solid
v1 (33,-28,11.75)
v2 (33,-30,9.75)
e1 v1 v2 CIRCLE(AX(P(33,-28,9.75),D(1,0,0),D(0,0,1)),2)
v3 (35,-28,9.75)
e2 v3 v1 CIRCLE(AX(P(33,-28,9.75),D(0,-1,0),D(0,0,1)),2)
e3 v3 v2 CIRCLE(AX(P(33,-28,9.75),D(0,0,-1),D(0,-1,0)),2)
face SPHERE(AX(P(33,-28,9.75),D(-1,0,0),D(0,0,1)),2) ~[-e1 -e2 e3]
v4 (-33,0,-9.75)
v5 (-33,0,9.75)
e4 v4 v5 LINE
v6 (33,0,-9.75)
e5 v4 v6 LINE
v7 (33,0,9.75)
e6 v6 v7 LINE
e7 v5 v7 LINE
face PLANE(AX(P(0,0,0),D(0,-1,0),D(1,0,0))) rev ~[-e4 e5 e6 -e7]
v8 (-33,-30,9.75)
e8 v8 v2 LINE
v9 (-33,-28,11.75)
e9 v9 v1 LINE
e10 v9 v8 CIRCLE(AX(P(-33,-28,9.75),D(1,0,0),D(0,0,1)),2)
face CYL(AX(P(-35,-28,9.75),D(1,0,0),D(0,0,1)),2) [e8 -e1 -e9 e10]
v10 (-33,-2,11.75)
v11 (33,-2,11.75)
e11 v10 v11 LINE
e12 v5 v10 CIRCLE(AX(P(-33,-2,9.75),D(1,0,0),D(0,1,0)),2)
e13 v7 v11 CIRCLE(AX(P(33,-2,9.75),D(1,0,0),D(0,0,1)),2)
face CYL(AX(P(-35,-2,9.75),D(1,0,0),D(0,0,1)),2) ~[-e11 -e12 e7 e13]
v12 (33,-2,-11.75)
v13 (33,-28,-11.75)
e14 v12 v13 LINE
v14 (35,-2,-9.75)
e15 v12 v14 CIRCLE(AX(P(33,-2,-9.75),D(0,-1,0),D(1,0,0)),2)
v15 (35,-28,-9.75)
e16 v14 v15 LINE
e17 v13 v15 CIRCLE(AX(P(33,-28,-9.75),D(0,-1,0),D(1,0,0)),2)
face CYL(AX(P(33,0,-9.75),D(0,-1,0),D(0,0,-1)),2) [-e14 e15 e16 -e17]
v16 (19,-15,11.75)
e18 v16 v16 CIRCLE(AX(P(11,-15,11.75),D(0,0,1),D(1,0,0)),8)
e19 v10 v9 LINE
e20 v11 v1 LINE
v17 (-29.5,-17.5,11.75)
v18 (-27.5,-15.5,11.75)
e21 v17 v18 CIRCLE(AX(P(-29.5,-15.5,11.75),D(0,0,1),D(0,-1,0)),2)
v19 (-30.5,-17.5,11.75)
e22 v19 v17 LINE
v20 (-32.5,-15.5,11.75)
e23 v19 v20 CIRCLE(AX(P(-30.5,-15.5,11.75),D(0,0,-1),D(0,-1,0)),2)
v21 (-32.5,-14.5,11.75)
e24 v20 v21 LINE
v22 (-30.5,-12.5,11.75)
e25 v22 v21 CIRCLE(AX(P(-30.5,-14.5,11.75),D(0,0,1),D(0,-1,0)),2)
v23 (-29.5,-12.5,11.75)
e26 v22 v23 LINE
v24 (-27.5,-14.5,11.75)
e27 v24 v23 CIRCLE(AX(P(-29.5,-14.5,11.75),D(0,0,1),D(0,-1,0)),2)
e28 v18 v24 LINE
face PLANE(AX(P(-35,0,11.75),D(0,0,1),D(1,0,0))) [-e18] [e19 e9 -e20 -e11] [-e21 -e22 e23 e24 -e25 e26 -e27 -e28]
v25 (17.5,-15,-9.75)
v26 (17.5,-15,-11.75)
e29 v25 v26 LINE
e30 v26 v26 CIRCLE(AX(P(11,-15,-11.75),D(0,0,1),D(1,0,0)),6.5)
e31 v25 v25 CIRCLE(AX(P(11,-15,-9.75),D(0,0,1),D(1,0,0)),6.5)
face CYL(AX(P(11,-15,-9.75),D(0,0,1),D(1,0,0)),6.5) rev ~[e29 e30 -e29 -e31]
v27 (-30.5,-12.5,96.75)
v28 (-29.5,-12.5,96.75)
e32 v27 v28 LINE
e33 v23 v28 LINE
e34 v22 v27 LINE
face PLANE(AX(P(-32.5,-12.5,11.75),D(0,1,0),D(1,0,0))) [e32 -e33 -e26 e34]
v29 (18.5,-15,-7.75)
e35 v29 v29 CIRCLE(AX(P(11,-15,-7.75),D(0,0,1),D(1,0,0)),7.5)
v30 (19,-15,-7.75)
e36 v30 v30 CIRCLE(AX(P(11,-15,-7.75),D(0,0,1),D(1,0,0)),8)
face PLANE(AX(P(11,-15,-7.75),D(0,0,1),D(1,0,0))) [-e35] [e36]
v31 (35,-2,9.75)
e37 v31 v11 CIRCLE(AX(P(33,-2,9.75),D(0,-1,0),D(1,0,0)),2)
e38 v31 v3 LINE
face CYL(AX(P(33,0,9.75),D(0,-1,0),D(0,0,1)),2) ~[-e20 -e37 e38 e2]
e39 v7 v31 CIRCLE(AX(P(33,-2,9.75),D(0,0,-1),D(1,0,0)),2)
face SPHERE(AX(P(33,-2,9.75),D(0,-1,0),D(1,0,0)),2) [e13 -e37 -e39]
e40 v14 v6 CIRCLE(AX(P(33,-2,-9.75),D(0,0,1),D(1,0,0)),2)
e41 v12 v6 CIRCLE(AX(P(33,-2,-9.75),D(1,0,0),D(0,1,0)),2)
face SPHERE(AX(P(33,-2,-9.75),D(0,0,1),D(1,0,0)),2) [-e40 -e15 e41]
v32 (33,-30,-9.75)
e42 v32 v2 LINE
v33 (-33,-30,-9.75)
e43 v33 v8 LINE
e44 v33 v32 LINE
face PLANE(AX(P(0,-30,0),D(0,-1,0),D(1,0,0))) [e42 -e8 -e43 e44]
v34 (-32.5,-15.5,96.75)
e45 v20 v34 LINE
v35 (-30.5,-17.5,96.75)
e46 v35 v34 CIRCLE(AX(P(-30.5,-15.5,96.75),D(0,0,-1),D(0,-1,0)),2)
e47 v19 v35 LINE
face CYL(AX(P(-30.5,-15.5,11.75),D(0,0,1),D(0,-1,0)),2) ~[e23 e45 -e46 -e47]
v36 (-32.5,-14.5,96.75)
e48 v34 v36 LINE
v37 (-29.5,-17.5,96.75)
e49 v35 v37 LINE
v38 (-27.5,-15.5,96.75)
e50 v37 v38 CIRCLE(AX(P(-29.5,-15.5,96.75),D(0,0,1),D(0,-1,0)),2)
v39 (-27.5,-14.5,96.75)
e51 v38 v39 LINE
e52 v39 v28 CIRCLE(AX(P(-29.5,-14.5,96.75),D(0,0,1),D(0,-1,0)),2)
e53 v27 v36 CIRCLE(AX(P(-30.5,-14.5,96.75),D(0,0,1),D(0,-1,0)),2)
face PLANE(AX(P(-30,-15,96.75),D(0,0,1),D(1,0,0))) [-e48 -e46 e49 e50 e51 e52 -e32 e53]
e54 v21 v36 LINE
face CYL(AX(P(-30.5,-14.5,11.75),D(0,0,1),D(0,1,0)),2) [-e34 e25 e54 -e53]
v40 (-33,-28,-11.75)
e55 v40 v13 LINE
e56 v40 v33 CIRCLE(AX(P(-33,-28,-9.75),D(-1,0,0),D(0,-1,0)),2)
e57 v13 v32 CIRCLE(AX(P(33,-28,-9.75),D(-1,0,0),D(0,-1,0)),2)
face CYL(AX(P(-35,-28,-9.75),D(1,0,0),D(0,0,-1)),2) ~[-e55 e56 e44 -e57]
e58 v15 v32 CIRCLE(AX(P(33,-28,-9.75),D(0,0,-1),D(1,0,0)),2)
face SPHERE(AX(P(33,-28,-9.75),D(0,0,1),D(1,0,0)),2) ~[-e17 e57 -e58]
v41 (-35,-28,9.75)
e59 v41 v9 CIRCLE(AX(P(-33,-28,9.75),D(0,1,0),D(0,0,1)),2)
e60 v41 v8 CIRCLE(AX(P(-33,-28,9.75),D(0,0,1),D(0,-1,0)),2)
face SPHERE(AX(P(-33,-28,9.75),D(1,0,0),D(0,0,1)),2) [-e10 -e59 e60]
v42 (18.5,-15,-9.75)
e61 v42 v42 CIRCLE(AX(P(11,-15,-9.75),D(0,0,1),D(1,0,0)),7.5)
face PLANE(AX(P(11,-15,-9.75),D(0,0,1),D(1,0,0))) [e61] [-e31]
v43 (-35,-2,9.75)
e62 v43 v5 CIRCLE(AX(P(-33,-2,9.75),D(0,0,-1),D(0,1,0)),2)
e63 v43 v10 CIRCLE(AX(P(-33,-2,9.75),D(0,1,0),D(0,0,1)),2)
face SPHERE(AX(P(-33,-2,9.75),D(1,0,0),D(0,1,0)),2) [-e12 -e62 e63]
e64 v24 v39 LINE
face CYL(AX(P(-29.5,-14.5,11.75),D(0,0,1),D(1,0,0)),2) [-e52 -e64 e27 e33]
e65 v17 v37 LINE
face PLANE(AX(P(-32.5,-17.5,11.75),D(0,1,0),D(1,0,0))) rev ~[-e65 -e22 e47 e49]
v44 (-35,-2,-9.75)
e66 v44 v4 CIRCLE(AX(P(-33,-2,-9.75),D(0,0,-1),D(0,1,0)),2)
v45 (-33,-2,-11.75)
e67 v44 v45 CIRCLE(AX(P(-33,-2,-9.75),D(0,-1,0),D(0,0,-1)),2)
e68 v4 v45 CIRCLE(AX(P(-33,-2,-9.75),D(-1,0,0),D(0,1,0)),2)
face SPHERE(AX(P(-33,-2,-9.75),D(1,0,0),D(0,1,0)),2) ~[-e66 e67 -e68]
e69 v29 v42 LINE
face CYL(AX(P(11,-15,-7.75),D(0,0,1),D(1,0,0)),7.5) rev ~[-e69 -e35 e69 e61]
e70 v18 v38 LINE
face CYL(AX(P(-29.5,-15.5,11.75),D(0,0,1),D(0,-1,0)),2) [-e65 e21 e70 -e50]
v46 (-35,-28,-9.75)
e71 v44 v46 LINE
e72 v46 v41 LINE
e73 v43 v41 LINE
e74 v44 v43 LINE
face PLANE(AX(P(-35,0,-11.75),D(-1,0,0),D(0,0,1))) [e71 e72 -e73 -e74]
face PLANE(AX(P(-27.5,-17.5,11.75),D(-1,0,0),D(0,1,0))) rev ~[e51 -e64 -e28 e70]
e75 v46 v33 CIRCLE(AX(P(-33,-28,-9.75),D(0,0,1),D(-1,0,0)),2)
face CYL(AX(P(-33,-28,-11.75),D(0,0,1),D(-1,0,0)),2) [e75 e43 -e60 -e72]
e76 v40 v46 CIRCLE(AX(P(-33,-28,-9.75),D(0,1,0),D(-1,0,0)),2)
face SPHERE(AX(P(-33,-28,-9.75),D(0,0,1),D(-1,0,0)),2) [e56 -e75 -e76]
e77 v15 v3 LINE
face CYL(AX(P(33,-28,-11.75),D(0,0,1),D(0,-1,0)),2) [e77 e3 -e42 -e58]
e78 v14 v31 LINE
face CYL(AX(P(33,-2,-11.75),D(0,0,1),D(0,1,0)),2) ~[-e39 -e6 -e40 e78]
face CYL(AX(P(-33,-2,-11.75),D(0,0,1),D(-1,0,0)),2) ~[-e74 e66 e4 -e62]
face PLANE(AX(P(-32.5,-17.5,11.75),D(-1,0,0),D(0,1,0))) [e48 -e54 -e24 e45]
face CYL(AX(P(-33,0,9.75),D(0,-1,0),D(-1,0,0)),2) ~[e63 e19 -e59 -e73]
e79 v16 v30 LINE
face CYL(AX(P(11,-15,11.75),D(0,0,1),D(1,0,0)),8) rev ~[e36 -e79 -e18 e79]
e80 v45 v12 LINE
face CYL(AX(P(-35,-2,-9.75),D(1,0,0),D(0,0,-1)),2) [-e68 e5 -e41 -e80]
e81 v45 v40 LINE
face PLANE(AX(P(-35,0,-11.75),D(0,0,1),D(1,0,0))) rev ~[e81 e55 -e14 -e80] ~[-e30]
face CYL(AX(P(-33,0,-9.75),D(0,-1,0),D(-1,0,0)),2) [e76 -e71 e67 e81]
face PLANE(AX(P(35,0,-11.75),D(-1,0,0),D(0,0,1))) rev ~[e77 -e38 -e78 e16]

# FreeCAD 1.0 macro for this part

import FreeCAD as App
import Part
import Sketcher
from FreeCAD import Vector
Q = App.Units.Quantity


def edges_at(feature, points):
    """Names of the edges that pass closest to the given points."""
    edges = feature.Shape.Edges
    near = lambda p: min(range(len(edges)), key=lambda i: edges[i].distToShape(Part.Vertex(*p))[0])
    return sorted({f"Edge{near(p) + 1}" for p in points})

doc = App.newDocument("Part")
body = doc.addObject("PartDesign::Body", "Body")

sketch1 = body.newObject("Sketcher::SketchObject", "Sketch")
sketch1.AttachmentSupport = (doc.getObject("XZ_Plane"), [""])
sketch1.MapMode = "FlatFace"
sketch1.addGeometry(Part.LineSegment(Vector(-35, 12, 0), Vector(-35, -12, 0)), False)
sketch1.addGeometry(Part.LineSegment(Vector(-35, -12, 0), Vector(35, -12, 0)), False)
sketch1.addGeometry(Part.LineSegment(Vector(35, -12, 0), Vector(35, 12, 0)), False)
sketch1.addGeometry(Part.LineSegment(Vector(35, 12, 0), Vector(-35, 12, 0)), False)
sketch1.addConstraint(Sketcher.Constraint("Coincident", 0, 2, 1, 1))
sketch1.addConstraint(Sketcher.Constraint("Coincident", 1, 2, 2, 1))
sketch1.addConstraint(Sketcher.Constraint("Coincident", 2, 2, 3, 1))
sketch1.addConstraint(Sketcher.Constraint("Coincident", 3, 2, 0, 1))
sketch1.addConstraint(Sketcher.Constraint("Vertical", 0))
sketch1.addConstraint(Sketcher.Constraint("Horizontal", 1))
sketch1.addConstraint(Sketcher.Constraint("Vertical", 2))
sketch1.addConstraint(Sketcher.Constraint("Horizontal", 3))
sketch1.addConstraint(Sketcher.Constraint("Symmetric", 0, 2, 2, 2, -1, 1))
sketch1.addConstraint(Sketcher.Constraint("DistanceX", 1, 1, 1, 2, Q("70 mm")))
sketch1.addConstraint(Sketcher.Constraint("DistanceY", 0, 2, 0, 1, Q("23.5 mm")))
pad1 = body.newObject("PartDesign::Pad", "Pad")
pad1.Profile = sketch1
pad1.Length = 30

sketch2 = body.newObject("Sketcher::SketchObject", "Sketch001")
sketch2.AttachmentSupport = (doc.getObject("XY_Plane"), [""])
sketch2.MapMode = "FlatFace"
sketch2.AttachmentOffset = App.Placement(Vector(0, 0, 11.75), App.Rotation())
sketch2.addGeometry(Part.Circle(Vector(11, -15, 0), Vector(0, 0, 1), 8), False)
sketch2.addConstraint(Sketcher.Constraint("Diameter", 0, Q("16 mm")))
sketch2.addConstraint(Sketcher.Constraint("DistanceX", -1, 1, 0, 3, Q("11 mm")))
sketch2.addConstraint(Sketcher.Constraint("DistanceY", 0, 3, -1, 1, Q("15 mm")))
pocket1 = body.newObject("PartDesign::Pocket", "Pocket")
pocket1.Profile = sketch2
pocket1.Length = 19.5

sketch3 = body.newObject("Sketcher::SketchObject", "Sketch002")
sketch3.AttachmentSupport = (doc.getObject("XY_Plane"), [""])
sketch3.MapMode = "FlatFace"
sketch3.AttachmentOffset = App.Placement(Vector(0, 0, -7.75), App.Rotation())
sketch3.addGeometry(Part.Circle(Vector(11, -15, 0), Vector(0, 0, 1), 8), False)
sketch3.addConstraint(Sketcher.Constraint("Diameter", 0, Q("15 mm")))
sketch3.addConstraint(Sketcher.Constraint("DistanceX", -1, 1, 0, 3, Q("11 mm")))
sketch3.addConstraint(Sketcher.Constraint("DistanceY", 0, 3, -1, 1, Q("15 mm")))
pocket2 = body.newObject("PartDesign::Pocket", "Pocket001")
pocket2.Profile = sketch3
pocket2.Length = 2

sketch4 = body.newObject("Sketcher::SketchObject", "Sketch003")
sketch4.AttachmentSupport = (doc.getObject("XY_Plane"), [""])
sketch4.MapMode = "FlatFace"
sketch4.AttachmentOffset = App.Placement(Vector(0, 0, -9.75), App.Rotation())
sketch4.addGeometry(Part.Circle(Vector(11, -15, 0), Vector(0, 0, 1), 6), False)
sketch4.addConstraint(Sketcher.Constraint("Diameter", 0, Q("13 mm")))
sketch4.addConstraint(Sketcher.Constraint("DistanceX", -1, 1, 0, 3, Q("11 mm")))
sketch4.addConstraint(Sketcher.Constraint("DistanceY", 0, 3, -1, 1, Q("15 mm")))
pocket3 = body.newObject("PartDesign::Pocket", "Pocket002")
pocket3.Profile = sketch4
pocket3.Type = "ThroughAll"

sketch5 = body.newObject("Sketcher::SketchObject", "Sketch004")
sketch5.AttachmentSupport = (doc.getObject("XY_Plane"), [""])
sketch5.MapMode = "FlatFace"
sketch5.AttachmentOffset = App.Placement(Vector(0, 0, 11.75), App.Rotation())
sketch5.addGeometry(Part.LineSegment(Vector(-32, -12, 0), Vector(-32, -18, 0)), False)
sketch5.addGeometry(Part.LineSegment(Vector(-32, -18, 0), Vector(-28, -18, 0)), False)
sketch5.addGeometry(Part.LineSegment(Vector(-28, -18, 0), Vector(-28, -12, 0)), False)
sketch5.addGeometry(Part.LineSegment(Vector(-28, -12, 0), Vector(-32, -12, 0)), False)
sketch5.addConstraint(Sketcher.Constraint("Coincident", 0, 2, 1, 1))
sketch5.addConstraint(Sketcher.Constraint("Coincident", 1, 2, 2, 1))
sketch5.addConstraint(Sketcher.Constraint("Coincident", 2, 2, 3, 1))
sketch5.addConstraint(Sketcher.Constraint("Coincident", 3, 2, 0, 1))
sketch5.addConstraint(Sketcher.Constraint("Vertical", 0))
sketch5.addConstraint(Sketcher.Constraint("Horizontal", 1))
sketch5.addConstraint(Sketcher.Constraint("Vertical", 2))
sketch5.addConstraint(Sketcher.Constraint("Horizontal", 3))
sketch5.addConstraint(Sketcher.Constraint("Equal", 3, 0))
sketch5.addConstraint(Sketcher.Constraint("DistanceX", 1, 1, 1, 2, Q("5 mm")))
sketch5.addConstraint(Sketcher.Constraint("DistanceX", 0, 2, -1, 1, Q("32.5 mm")))
sketch5.addConstraint(Sketcher.Constraint("DistanceY", 0, 2, -1, 1, Q("17.5 mm")))
pad2 = body.newObject("PartDesign::Pad", "Pad001")
pad2.Profile = sketch5
pad2.Length = 85
doc.recompute()

fillet = body.newObject("PartDesign::Fillet", "Fillet")
fillet.Base = (pad2, edges_at(pad2, [
    (0, -30, 11.75),
    (35, -15, 11.75),
    (35, -30, 0),
    (35, 0, 0),
    (35, -15, -11.75),
    (0, 0, 11.75),
    (0, 0, -11.75),
    (-35, 0, 0),
    (-35, -15, 11.75),
    (-35, -30, 0),
    (-35, -15, -11.75),
    (0, -30, -11.75),
    (-32.5, -17.5, 54.25),
    (-27.5, -17.5, 54.25),
    (-27.5, -12.5, 54.25),
    (-32.5, -12.5, 54.25),
]))
fillet.Radius = 2

doc.recompute()
